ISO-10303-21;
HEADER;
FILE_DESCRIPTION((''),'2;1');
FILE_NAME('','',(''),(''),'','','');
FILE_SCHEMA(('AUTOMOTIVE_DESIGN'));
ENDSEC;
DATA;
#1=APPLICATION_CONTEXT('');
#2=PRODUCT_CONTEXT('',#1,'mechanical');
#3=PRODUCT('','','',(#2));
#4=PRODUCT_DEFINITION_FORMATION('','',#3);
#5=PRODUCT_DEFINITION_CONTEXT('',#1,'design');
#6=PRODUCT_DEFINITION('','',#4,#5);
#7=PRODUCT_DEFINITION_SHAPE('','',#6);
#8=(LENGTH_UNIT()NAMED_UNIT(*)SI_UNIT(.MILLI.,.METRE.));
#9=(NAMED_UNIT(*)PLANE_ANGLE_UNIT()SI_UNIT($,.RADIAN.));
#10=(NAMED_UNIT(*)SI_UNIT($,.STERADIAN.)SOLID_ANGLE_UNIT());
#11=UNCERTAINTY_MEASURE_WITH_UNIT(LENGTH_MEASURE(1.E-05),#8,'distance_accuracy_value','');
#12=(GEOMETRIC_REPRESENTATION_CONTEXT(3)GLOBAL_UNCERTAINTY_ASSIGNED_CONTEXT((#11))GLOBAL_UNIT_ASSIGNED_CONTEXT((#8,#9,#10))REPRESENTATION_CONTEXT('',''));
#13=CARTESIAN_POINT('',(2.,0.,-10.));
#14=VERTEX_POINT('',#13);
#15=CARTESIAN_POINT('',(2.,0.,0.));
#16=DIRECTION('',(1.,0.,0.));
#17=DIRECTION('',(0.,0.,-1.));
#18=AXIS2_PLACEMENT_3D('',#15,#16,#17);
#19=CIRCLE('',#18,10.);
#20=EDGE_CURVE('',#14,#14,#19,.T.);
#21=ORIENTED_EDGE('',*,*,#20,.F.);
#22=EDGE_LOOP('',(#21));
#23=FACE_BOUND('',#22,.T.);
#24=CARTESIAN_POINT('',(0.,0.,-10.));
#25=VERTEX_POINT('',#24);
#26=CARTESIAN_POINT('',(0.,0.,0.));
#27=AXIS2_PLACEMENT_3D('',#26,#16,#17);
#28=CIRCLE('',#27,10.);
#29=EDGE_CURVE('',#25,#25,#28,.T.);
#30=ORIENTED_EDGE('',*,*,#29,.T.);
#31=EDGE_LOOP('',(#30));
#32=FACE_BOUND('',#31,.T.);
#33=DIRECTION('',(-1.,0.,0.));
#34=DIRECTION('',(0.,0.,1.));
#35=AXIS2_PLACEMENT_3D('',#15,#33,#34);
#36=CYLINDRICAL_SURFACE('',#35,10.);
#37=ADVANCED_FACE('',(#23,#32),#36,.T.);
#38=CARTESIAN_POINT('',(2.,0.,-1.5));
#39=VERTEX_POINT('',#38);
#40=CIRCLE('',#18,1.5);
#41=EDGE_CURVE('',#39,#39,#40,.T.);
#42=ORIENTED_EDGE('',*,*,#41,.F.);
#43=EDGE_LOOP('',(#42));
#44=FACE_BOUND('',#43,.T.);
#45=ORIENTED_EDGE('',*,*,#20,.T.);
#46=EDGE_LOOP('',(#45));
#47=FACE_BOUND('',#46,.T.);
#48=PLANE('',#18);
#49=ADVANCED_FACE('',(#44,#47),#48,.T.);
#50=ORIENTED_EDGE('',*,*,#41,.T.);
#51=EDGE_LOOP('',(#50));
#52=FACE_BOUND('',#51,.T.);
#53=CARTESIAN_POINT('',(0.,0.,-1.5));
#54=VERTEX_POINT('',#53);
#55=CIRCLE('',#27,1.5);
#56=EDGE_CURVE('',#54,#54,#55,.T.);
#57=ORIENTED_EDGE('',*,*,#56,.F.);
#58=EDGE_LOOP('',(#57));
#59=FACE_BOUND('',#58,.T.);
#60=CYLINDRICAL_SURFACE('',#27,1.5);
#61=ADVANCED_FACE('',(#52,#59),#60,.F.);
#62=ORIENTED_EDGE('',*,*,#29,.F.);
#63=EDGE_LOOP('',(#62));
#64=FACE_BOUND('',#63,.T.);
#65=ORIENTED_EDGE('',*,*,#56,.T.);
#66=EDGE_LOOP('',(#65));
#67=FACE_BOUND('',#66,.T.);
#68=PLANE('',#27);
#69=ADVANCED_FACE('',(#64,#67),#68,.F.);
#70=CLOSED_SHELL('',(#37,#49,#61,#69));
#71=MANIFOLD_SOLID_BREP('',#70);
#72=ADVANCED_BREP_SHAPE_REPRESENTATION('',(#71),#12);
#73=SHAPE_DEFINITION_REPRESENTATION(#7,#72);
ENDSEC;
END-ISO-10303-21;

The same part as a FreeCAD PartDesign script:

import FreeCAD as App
import Part
import Sketcher

doc = App.newDocument("Part")
params = doc.addObject("Spreadsheet::Sheet", "Params")
for row, (alias, value) in enumerate([
    ("sketch1_diameter", "20 mm"),
    ("pad1_length", "2 mm"),
    ("sketch2_diameter", "3 mm"),
], start=1):
    params.set(f"A{row}", alias)
    params.set(f"B{row}", "=" + value)
    params.setAlias(f"B{row}", alias)

body = doc.addObject("PartDesign::Body", "Body")

sketch1 = body.newObject("Sketcher::SketchObject", "Sketch")
sketch1.AttachmentSupport = (doc.getObject("YZ_Plane"), [""])
sketch1.MapMode = "FlatFace"
sketch1.addGeometry(Part.Circle(App.Vector(0, 0, 0), App.Vector(0, 0, 1), 10), False)
sketch1.addConstraint(Sketcher.Constraint("Coincident", 0, 3, -1, 1))
sketch1.addConstraint(Sketcher.Constraint("Diameter", 0, 20.0))
sketch1.setExpression("Constraints[1]", "Params.sketch1_diameter")
pad1 = body.newObject("PartDesign::Pad", "Pad")
pad1.Profile = sketch1
pad1.setExpression("Length", "Params.pad1_length")

sketch2 = body.newObject("Sketcher::SketchObject", "Sketch001")
sketch2.AttachmentSupport = (doc.getObject("YZ_Plane"), [""])
sketch2.MapMode = "FlatFace"
sketch2.AttachmentOffset = App.Placement(App.Vector(0, 0, 2), App.Rotation())
sketch2.addGeometry(Part.Circle(App.Vector(0, 0, 0), App.Vector(0, 0, 1), 1.5), False)
sketch2.addConstraint(Sketcher.Constraint("Coincident", 0, 3, -1, 1))
sketch2.addConstraint(Sketcher.Constraint("Diameter", 0, 3.0))
sketch2.setExpression("Constraints[1]", "Params.sketch2_diameter")
pocket1 = body.newObject("PartDesign::Pocket", "Pocket")
pocket1.Profile = sketch2
pocket1.Type = "ThroughAll"

doc.recompute()
